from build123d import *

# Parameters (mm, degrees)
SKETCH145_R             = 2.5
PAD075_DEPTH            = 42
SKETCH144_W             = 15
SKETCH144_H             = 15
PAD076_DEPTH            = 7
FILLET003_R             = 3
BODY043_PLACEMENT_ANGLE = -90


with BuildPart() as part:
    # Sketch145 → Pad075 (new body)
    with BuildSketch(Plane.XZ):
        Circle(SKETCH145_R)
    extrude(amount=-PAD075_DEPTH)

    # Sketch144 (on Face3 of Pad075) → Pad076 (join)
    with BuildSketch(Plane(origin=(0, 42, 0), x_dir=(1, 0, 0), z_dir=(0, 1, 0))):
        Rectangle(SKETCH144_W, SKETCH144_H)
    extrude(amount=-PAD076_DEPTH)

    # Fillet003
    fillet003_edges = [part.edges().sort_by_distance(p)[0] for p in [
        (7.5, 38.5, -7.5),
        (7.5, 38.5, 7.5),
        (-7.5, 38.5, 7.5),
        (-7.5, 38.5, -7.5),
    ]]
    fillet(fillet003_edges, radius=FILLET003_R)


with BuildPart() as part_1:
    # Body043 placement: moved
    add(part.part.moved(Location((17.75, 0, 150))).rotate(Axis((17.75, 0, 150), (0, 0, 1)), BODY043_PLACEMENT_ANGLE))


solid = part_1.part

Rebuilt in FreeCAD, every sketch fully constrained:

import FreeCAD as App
import Part
import Sketcher


def edges_at(feature, points):
    """Names of the edges that pass closest to the given points."""
    edges = feature.Shape.Edges
    near = lambda p: min(range(len(edges)), key=lambda i: edges[i].distToShape(Part.Vertex(*p))[0])
    return sorted({f"Edge{near(p) + 1}" for p in points})


def add_polygon(sketch, points):
    """Adds a closed chain of lines whose ends are joined by coincident constraints."""
    first, n = sketch.GeometryCount, len(points)
    for a, b in zip(points, points[1:] + points[:1]):
        sketch.addGeometry(Part.LineSegment(App.Vector(*a, 0), App.Vector(*b, 0)), False)
    for i in range(n):
        sketch.addConstraint(Sketcher.Constraint("Coincident", first + i, 2, first + (i + 1) % n, 1))

doc = App.newDocument("Part")
body = doc.addObject("PartDesign::Body", "Body")

sketch1 = doc.addObject("Sketcher::SketchObject", "Sketch")
body.addObject(sketch1)
sketch1.AttachmentSupport = (doc.XZ_Plane, [""])
sketch1.MapMode = "FlatFace"
sketch1.addGeometry(Part.Circle(App.Vector(0, 0, 0), App.Vector(0, 0, 1), 2.5), False)
sketch1.addConstraint([
    Sketcher.Constraint("Coincident", 0, 3, -1, 1),
    Sketcher.Constraint("Diameter", 0, 5.0),
])
pad1 = doc.addObject("PartDesign::Pad", "Pad")
body.addObject(pad1)
pad1.Profile = sketch1
pad1.Length = 42
pad1.Reversed = True

sketch2 = doc.addObject("Sketcher::SketchObject", "Sketch001")
body.addObject(sketch2)
sketch2.AttachmentSupport = (doc.XZ_Plane, [""])
sketch2.MapMode = "FlatFace"
sketch2.AttachmentOffset = App.Placement(App.Vector(0, 0, -42), App.Rotation())
add_polygon(sketch2, [(-8, -8), (-8, 8), (8, 8), (8, -8)])
sketch2.addConstraint([
    Sketcher.Constraint("Vertical", 0),
    Sketcher.Constraint("Horizontal", 1),
    Sketcher.Constraint("Vertical", 2),
    Sketcher.Constraint("Horizontal", 3),
    Sketcher.Constraint("Symmetric", 0, 2, 2, 2, -1, 1),
    Sketcher.Constraint("Equal", 3, 0),
    Sketcher.Constraint("DistanceX", 1, 1, 1, 2, 15.0),
])
pad2 = doc.addObject("PartDesign::Pad", "Pad001")
body.addObject(pad2)
pad2.Profile = sketch2
pad2.Length = 7
doc.recompute()

fillet = doc.addObject("PartDesign::Fillet", "Fillet")
body.addObject(fillet)
fillet.Base = (pad2, edges_at(pad2, [
    (7.5, 38.5, -7.5),
    (7.5, 38.5, 7.5),
    (-7.5, 38.5, 7.5),
    (-7.5, 38.5, -7.5),
]))
fillet.Radius = 3
body2 = doc.addObject("PartDesign::Body", "Body001")
doc.recompute()

body.Placement = App.Placement(App.Vector(17.75, 0, 150), App.Rotation(App.Vector(0, 0, 1), 270))
boolean = doc.addObject("PartDesign::Boolean", "Boolean")
body2.addObject(boolean)
boolean.Type = "Fuse"
boolean.addObjects([body])

doc.recompute()
